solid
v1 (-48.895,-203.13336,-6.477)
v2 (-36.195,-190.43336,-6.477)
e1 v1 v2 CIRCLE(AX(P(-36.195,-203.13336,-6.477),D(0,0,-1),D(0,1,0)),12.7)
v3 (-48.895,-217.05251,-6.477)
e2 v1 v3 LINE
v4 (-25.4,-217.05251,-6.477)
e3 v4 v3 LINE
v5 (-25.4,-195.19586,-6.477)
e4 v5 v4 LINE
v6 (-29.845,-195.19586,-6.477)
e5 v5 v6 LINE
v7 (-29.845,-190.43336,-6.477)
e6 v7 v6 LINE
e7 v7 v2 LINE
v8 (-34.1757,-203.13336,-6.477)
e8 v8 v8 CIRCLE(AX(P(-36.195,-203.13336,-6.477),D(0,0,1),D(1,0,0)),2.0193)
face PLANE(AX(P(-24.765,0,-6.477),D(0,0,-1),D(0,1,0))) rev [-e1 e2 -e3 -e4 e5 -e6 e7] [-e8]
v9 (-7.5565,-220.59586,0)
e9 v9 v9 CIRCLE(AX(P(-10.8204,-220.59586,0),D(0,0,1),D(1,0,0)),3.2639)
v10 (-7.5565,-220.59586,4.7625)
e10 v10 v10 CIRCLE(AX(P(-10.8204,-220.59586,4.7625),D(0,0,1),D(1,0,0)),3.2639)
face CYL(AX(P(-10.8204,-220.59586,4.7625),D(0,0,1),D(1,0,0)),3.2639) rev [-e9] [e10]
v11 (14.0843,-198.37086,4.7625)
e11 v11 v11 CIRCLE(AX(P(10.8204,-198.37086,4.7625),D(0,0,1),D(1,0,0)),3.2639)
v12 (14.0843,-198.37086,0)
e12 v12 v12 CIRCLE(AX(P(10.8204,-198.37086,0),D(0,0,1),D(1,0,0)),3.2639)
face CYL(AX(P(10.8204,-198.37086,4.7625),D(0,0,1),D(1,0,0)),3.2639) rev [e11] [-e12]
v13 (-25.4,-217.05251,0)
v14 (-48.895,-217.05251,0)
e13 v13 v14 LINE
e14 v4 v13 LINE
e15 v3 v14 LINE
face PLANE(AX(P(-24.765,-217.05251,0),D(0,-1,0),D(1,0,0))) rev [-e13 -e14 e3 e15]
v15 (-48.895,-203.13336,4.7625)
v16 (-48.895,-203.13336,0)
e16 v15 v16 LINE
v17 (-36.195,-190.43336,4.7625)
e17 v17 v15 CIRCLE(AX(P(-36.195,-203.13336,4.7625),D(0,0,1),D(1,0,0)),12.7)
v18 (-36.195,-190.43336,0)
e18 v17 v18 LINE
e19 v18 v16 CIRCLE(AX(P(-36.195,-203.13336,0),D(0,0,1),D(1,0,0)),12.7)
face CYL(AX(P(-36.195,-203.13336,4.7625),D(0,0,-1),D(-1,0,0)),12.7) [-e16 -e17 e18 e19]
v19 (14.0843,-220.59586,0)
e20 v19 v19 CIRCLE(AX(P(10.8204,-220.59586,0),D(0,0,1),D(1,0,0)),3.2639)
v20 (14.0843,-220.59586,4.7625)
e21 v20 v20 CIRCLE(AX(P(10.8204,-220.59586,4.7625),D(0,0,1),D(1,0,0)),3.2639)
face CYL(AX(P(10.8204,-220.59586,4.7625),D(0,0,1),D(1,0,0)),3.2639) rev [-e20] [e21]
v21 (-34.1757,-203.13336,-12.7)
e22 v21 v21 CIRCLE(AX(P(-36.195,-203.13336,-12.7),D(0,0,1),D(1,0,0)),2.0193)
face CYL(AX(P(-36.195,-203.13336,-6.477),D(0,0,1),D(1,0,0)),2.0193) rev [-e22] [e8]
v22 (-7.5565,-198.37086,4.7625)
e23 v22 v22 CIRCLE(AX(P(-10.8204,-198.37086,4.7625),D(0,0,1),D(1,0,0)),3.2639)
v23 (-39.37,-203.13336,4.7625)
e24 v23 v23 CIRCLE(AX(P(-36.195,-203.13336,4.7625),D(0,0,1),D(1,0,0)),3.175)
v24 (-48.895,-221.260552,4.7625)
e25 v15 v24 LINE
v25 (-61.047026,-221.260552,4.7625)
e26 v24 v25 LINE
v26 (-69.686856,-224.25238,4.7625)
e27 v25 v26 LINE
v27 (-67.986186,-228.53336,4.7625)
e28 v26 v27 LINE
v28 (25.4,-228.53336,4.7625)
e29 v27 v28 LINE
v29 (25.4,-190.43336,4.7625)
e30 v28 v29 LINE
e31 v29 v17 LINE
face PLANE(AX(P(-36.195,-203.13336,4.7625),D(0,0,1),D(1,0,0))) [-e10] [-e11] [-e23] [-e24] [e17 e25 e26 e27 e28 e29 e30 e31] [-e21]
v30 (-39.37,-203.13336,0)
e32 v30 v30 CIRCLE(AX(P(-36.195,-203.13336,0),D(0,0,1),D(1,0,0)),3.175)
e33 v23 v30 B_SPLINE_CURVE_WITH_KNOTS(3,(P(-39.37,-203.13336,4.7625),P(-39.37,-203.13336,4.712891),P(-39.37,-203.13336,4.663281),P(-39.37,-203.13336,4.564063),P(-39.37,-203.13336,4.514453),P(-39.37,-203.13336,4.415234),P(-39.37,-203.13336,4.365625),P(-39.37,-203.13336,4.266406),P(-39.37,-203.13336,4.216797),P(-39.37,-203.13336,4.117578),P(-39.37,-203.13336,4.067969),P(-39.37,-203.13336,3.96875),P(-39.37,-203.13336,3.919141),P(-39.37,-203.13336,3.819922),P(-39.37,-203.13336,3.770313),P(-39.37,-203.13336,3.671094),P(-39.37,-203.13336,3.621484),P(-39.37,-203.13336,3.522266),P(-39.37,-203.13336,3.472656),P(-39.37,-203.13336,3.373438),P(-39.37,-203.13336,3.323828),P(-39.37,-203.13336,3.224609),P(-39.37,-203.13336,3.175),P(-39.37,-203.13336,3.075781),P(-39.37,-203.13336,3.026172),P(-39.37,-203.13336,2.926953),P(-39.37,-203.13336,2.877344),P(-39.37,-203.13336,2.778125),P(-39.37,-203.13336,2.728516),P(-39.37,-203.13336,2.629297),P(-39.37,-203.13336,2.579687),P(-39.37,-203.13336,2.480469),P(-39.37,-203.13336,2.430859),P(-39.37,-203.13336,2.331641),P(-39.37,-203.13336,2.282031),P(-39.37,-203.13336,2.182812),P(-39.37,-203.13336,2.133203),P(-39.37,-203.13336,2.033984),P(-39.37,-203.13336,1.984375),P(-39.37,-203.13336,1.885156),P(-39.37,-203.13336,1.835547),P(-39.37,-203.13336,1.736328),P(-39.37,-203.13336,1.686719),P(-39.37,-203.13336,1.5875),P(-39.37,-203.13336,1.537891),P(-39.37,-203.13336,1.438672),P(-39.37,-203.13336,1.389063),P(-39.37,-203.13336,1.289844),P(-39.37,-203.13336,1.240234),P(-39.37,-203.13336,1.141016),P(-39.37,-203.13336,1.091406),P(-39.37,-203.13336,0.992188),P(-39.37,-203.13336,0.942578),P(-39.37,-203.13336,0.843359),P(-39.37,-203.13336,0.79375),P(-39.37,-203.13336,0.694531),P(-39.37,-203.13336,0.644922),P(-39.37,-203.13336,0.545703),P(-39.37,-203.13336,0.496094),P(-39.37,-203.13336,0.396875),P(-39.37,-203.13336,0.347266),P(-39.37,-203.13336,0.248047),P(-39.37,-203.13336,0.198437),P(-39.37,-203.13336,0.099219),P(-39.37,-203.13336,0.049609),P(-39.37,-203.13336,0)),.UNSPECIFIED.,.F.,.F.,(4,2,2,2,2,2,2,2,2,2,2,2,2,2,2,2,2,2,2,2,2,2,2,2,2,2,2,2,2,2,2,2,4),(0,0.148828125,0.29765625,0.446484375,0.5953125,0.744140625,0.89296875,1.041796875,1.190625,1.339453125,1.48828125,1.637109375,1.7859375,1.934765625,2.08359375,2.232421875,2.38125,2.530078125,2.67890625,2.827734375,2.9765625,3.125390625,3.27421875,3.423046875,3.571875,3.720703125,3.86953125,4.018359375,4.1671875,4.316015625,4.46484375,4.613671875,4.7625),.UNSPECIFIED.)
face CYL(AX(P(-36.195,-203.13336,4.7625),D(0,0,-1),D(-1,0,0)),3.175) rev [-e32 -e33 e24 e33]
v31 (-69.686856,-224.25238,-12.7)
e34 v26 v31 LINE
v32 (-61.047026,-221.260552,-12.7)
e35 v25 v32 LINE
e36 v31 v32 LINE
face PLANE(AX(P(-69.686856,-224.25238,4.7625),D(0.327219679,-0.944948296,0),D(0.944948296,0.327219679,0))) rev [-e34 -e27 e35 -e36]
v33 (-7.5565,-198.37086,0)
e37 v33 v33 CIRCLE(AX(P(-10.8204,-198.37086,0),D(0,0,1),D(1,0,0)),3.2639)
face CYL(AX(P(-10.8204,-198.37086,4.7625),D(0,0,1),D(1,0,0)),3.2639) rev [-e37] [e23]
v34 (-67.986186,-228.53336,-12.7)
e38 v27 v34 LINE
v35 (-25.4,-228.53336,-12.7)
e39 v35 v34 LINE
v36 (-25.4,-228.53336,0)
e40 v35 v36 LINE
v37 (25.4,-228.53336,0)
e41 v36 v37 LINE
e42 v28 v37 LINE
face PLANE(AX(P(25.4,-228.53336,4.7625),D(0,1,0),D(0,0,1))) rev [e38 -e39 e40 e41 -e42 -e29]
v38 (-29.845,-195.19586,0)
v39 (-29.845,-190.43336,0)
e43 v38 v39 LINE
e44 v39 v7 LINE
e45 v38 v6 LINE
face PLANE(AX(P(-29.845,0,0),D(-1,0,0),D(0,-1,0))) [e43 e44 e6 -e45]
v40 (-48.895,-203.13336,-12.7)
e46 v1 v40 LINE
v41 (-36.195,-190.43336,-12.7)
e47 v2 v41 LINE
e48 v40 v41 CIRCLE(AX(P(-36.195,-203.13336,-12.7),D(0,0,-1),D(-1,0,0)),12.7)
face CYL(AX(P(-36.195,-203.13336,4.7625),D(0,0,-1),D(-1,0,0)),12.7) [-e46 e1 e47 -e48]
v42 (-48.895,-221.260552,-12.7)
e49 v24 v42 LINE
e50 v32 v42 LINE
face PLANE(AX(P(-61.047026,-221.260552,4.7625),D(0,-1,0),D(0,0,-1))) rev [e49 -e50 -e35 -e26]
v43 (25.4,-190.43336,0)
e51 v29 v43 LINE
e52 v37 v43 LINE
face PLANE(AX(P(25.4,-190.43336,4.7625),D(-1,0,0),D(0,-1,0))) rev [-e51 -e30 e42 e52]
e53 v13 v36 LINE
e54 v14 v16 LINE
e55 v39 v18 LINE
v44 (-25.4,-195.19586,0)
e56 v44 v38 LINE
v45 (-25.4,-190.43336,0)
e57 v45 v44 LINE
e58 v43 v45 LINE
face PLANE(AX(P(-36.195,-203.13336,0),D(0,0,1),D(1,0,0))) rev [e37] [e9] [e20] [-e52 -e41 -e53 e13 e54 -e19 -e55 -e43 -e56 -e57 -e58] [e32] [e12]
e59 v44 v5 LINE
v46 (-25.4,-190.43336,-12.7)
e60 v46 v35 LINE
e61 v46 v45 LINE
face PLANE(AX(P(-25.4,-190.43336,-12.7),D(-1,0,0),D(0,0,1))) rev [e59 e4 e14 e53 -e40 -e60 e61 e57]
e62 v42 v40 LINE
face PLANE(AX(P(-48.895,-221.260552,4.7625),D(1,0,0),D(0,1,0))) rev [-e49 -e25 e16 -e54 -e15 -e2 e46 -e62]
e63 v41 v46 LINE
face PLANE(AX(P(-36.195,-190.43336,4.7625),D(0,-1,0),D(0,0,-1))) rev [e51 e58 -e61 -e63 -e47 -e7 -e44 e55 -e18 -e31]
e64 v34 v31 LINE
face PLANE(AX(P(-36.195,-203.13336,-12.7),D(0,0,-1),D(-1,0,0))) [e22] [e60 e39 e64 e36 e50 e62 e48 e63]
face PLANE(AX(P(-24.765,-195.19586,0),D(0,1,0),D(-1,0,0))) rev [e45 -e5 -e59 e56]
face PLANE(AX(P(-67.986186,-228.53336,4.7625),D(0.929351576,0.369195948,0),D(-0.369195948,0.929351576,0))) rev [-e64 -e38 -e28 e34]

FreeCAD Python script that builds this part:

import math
import FreeCAD as App
import Part
import Sketcher
Q = App.Units.Quantity

doc = App.newDocument("Part")
body = doc.addObject("PartDesign::Body", "Body")

sketch1 = body.newObject("Sketcher::SketchObject", "Sketch")
sketch1.AttachmentSupport = (doc.getObject("XY_Plane"), [""])
sketch1.MapMode = "FlatFace"
sketch1.addGeometry([
    Part.LineSegment(App.Vector(-69.7, -224.3, 0), App.Vector(-68, -228.5, 0)),
    Part.LineSegment(App.Vector(-68, -228.5, 0), App.Vector(25.4, -228.5, 0)),
    Part.LineSegment(App.Vector(25.4, -228.5, 0), App.Vector(25.4, -190.4, 0)),
    Part.LineSegment(App.Vector(25.4, -190.4, 0), App.Vector(-36.2, -190.4, 0)),
    Part.ArcOfCircle(Part.Circle(App.Vector(-36.2, -203.1, 0), App.Vector(0, 0, 1), 12.7), math.radians(90), math.radians(180)),
    Part.LineSegment(App.Vector(-48.9, -203.1, 0), App.Vector(-48.9, -221.3, 0)),
    Part.LineSegment(App.Vector(-48.9, -221.3, 0), App.Vector(-61, -221.3, 0)),
    Part.LineSegment(App.Vector(-61, -221.3, 0), App.Vector(-69.7, -224.3, 0)),
    Part.Circle(App.Vector(-36.2, -203.1, 0), App.Vector(0, 0, 1), 3.2),
], False)
sketch1.addConstraint([
    Sketcher.Constraint("Coincident", 0, 2, 1, 1),
    Sketcher.Constraint("Coincident", 1, 2, 2, 1),
    Sketcher.Constraint("Coincident", 2, 2, 3, 1),
    Sketcher.Constraint("Tangent", 3, 2, 4, 1),
    Sketcher.Constraint("Tangent", 4, 2, 5, 1),
    Sketcher.Constraint("Coincident", 5, 2, 6, 1),
    Sketcher.Constraint("Coincident", 6, 2, 7, 1),
    Sketcher.Constraint("Coincident", 7, 2, 0, 1),
    Sketcher.Constraint("Horizontal", 1),
    Sketcher.Constraint("Vertical", 2),
    Sketcher.Constraint("Horizontal", 3),
    Sketcher.Constraint("Vertical", 5),
    Sketcher.Constraint("Horizontal", 6),
    Sketcher.Constraint("Coincident", 8, 3, 4, 3),
    Sketcher.Constraint("Radius", 4, Q("0.5 in")),
    Sketcher.Constraint("Diameter", 8, Q("0.25 in")),
    Sketcher.Constraint("DistanceY", 2, 1, 2, 2, Q("1.5 in")),
    Sketcher.Constraint("DistanceX", -1, 1, 1, 2, Q("1 in")),
    Sketcher.Constraint("DistanceX", 3, 2, 3, 1, Q("2.425 in")),
    Sketcher.Constraint("Distance", 7, Q("9.143178 mm")),
    Sketcher.Constraint("DistanceX", 1, 1, 1, 2, Q("93.386186 mm")),
    Sketcher.Constraint("DistanceX", 6, 2, 6, 1, Q("12.152026 mm")),
    Sketcher.Constraint("DistanceY", 5, 2, 5, 1, Q("18.127192 mm")),
    Sketcher.Constraint("DistanceY", 4, 3, -1, 1, Q("203.13336 mm")),
    Sketcher.Constraint("DistanceY", 7, 2, -1, 1, Q("224.25238 mm")),
])
pad1 = body.newObject("PartDesign::Pad", "Pad")
pad1.Profile = sketch1
pad1.Length = Q("0.1875 in")

sketch2 = body.newObject("Sketcher::SketchObject", "Sketch001")
sketch2.AttachmentSupport = (doc.getObject("XY_Plane"), [""])
sketch2.MapMode = "FlatFace"
sketch2.AttachmentOffset = App.Placement(App.Vector(0, 0, -0.5 * 25.4), App.Rotation())
sketch2.addGeometry([
    Part.LineSegment(App.Vector(-25.4, -190.4, 0), App.Vector(-25.4, -228.5, 0)),
    Part.LineSegment(App.Vector(-25.4, -228.5, 0), App.Vector(-68, -228.5, 0)),
    Part.LineSegment(App.Vector(-68, -228.5, 0), App.Vector(-69.7, -224.3, 0)),
    Part.LineSegment(App.Vector(-69.7, -224.3, 0), App.Vector(-61, -221.3, 0)),
    Part.LineSegment(App.Vector(-61, -221.3, 0), App.Vector(-48.9, -221.3, 0)),
    Part.LineSegment(App.Vector(-48.9, -221.3, 0), App.Vector(-48.9, -203.1, 0)),
    Part.ArcOfCircle(Part.Circle(App.Vector(-36.2, -203.1, 0), App.Vector(0, 0, 1), 12.7), math.radians(90), math.radians(180)),
    Part.LineSegment(App.Vector(-36.2, -190.4, 0), App.Vector(-25.4, -190.4, 0)),
], False)
sketch2.addConstraint([
    Sketcher.Constraint("Coincident", 0, 2, 1, 1),
    Sketcher.Constraint("Coincident", 1, 2, 2, 1),
    Sketcher.Constraint("Coincident", 2, 2, 3, 1),
    Sketcher.Constraint("Coincident", 3, 2, 4, 1),
    Sketcher.Constraint("Coincident", 4, 2, 5, 1),
    Sketcher.Constraint("Tangent", 5, 2, 6, 2),
    Sketcher.Constraint("Tangent", 6, 1, 7, 1),
    Sketcher.Constraint("Coincident", 7, 2, 0, 1),
    Sketcher.Constraint("Vertical", 0),
    Sketcher.Constraint("Horizontal", 1),
    Sketcher.Constraint("Horizontal", 4),
    Sketcher.Constraint("Vertical", 5),
    Sketcher.Constraint("Horizontal", 7),
    Sketcher.Constraint("Radius", 6, Q("0.5 in")),
    Sketcher.Constraint("DistanceY", 0, 2, 0, 1, Q("1.5 in")),
    Sketcher.Constraint("DistanceX", 0, 2, -1, 1, Q("1 in")),
    Sketcher.Constraint("DistanceX", 7, 1, 7, 2, Q("0.425 in")),
    Sketcher.Constraint("Distance", 3, Q("9.143178 mm")),
    Sketcher.Constraint("DistanceX", 1, 2, 1, 1, Q("42.586186 mm")),
    Sketcher.Constraint("DistanceX", 4, 1, 4, 2, Q("12.152026 mm")),
    Sketcher.Constraint("DistanceY", 5, 1, 5, 2, Q("18.127192 mm")),
    Sketcher.Constraint("DistanceY", 6, 3, -1, 1, Q("203.13336 mm")),
    Sketcher.Constraint("DistanceY", 2, 2, -1, 1, Q("224.25238 mm")),
])
pad2 = body.newObject("PartDesign::Pad", "Pad001")
pad2.Profile = sketch2
pad2.Length = Q("0.5 in")

sketch3 = body.newObject("Sketcher::SketchObject", "Sketch002")
sketch3.AttachmentSupport = (doc.getObject("YZ_Plane"), [""])
sketch3.MapMode = "FlatFace"
sketch3.AttachmentOffset = App.Placement(App.Vector(0, 0, -1.925 * 25.4), App.Rotation())
sketch3.addGeometry([
    Part.LineSegment(App.Vector(-217, -6, 0), App.Vector(-217, 0, 0)),
    Part.LineSegment(App.Vector(-217, 0, 0), App.Vector(-195, 0, 0)),
    Part.LineSegment(App.Vector(-195, 0, 0), App.Vector(-195, -6, 0)),
    Part.LineSegment(App.Vector(-195, -6, 0), App.Vector(-217, -6, 0)),
], False)
sketch3.addConstraint([
    Sketcher.Constraint("Coincident", 0, 2, 1, 1),
    Sketcher.Constraint("Coincident", 1, 2, 2, 1),
    Sketcher.Constraint("Coincident", 2, 2, 3, 1),
    Sketcher.Constraint("Coincident", 3, 2, 0, 1),
    Sketcher.Constraint("Vertical", 0),
    Sketcher.Constraint("Horizontal", 1),
    Sketcher.Constraint("Vertical", 2),
    Sketcher.Constraint("Horizontal", 3),
    Sketcher.Constraint("PointOnObject", 0, 2, -1),
    Sketcher.Constraint("DistanceY", 0, 1, 0, 2, Q("0.255 in")),
    Sketcher.Constraint("DistanceX", 1, 1, 1, 2, Q("21.856651 mm")),
    Sketcher.Constraint("DistanceX", 0, 2, -1, 1, Q("217.05251 mm")),
])
pocket1 = body.newObject("PartDesign::Pocket", "Pocket")
pocket1.Profile = sketch3
pocket1.Length = Q("0.95 in")
pocket1.Reversed = True

sketch4 = body.newObject("Sketcher::SketchObject", "Sketch003")
sketch4.AttachmentSupport = (doc.getObject("YZ_Plane"), [""])
sketch4.MapMode = "FlatFace"
sketch4.AttachmentOffset = App.Placement(App.Vector(0, 0, -1.925 * 25.4), App.Rotation())
sketch4.addGeometry([
    Part.LineSegment(App.Vector(-190.4, -6.5, 0), App.Vector(-195.2, -6.5, 0)),
    Part.LineSegment(App.Vector(-195.2, -6.5, 0), App.Vector(-195.2, 0, 0)),
    Part.LineSegment(App.Vector(-195.2, 0, 0), App.Vector(-190.4, 0, 0)),
    Part.LineSegment(App.Vector(-190.4, 0, 0), App.Vector(-190.4, -6.5, 0)),
], False)
sketch4.addConstraint([
    Sketcher.Constraint("Coincident", 0, 2, 1, 1),
    Sketcher.Constraint("Coincident", 1, 2, 2, 1),
    Sketcher.Constraint("Coincident", 2, 2, 3, 1),
    Sketcher.Constraint("Coincident", 3, 2, 0, 1),
    Sketcher.Constraint("Horizontal", 0),
    Sketcher.Constraint("Vertical", 1),
    Sketcher.Constraint("Horizontal", 2),
    Sketcher.Constraint("Vertical", 3),
    Sketcher.Constraint("PointOnObject", 1, 2, -1),
    Sketcher.Constraint("DistanceX", 0, 2, 0, 1, Q("0.1875 in")),
    Sketcher.Constraint("DistanceY", 1, 1, 1, 2, Q("0.255 in")),
    Sketcher.Constraint("DistanceX", 0, 2, -1, 1, Q("195.19586 mm")),
])
pocket2 = body.newObject("PartDesign::Pocket", "Pocket001")
pocket2.Profile = sketch4
pocket2.Length = Q("0.75 in")
pocket2.Reversed = True

sketch5 = body.newObject("Sketcher::SketchObject", "Sketch004")
sketch5.AttachmentSupport = (doc.getObject("XY_Plane"), [""])
sketch5.MapMode = "FlatFace"
sketch5.AttachmentOffset = App.Placement(App.Vector(0, 0, -0.255 * 25.4), App.Rotation())
sketch5.addGeometry(Part.Circle(App.Vector(-36.2, -203.1, 0), App.Vector(0, 0, 1), 2), False)
sketch5.addConstraint([
    Sketcher.Constraint("Diameter", 0, Q("0.159 in")),
    Sketcher.Constraint("DistanceX", 0, 3, -1, 1, Q("1.425 in")),
    Sketcher.Constraint("DistanceY", 0, 3, -1, 1, Q("203.13336 mm")),
])
doc.recompute()
hole = body.newObject("PartDesign::Hole", "Hole")
hole.Profile = sketch5
hole.ThreadType = "None"
hole.Diameter = Q("0.159 in")
hole.DepthType = "ThroughAll"

sketch6 = body.newObject("Sketcher::SketchObject", "Sketch005")
sketch6.AttachmentSupport = (doc.getObject("XY_Plane"), [""])
sketch6.MapMode = "FlatFace"
sketch6.AttachmentOffset = App.Placement(App.Vector(0, 0, 0.1875 * 25.4), App.Rotation())
sketch6.addGeometry([
    Part.Circle(App.Vector(-10.8, -198.4, 0), App.Vector(0, 0, 1), 3.3),
    Part.Circle(App.Vector(-10.8, -220.6, 0), App.Vector(0, 0, 1), 3.3),
    Part.Circle(App.Vector(10.8, -220.6, 0), App.Vector(0, 0, 1), 3.3),
    Part.Circle(App.Vector(10.8, -198.4, 0), App.Vector(0, 0, 1), 3.3),
], False)
sketch6.addConstraint([
    Sketcher.Constraint("Equal", 0, 1),
    Sketcher.Constraint("Equal", 1, 2),
    Sketcher.Constraint("Equal", 2, 3),
    Sketcher.Constraint("Symmetric", 1, 3, 2, 3, -2),
    Sketcher.Constraint("Symmetric", 0, 3, 3, 3, -2),
    Sketcher.Constraint("Vertical", 0, 3, 1, 3),
    Sketcher.Constraint("Diameter", 0, Q("0.257 in")),
    Sketcher.Constraint("DistanceX", 0, 3, -1, 1, Q("0.426 in")),
    Sketcher.Constraint("DistanceY", 1, 3, 0, 3, Q("0.875 in")),
    Sketcher.Constraint("DistanceY", 0, 3, -1, 1, Q("198.37086 mm")),
])
doc.recompute()
hole2 = body.newObject("PartDesign::Hole", "Hole001")
hole2.Profile = sketch6
hole2.ThreadType = "None"
hole2.Diameter = Q("0.257 in")
hole2.DepthType = "ThroughAll"

doc.recompute()
